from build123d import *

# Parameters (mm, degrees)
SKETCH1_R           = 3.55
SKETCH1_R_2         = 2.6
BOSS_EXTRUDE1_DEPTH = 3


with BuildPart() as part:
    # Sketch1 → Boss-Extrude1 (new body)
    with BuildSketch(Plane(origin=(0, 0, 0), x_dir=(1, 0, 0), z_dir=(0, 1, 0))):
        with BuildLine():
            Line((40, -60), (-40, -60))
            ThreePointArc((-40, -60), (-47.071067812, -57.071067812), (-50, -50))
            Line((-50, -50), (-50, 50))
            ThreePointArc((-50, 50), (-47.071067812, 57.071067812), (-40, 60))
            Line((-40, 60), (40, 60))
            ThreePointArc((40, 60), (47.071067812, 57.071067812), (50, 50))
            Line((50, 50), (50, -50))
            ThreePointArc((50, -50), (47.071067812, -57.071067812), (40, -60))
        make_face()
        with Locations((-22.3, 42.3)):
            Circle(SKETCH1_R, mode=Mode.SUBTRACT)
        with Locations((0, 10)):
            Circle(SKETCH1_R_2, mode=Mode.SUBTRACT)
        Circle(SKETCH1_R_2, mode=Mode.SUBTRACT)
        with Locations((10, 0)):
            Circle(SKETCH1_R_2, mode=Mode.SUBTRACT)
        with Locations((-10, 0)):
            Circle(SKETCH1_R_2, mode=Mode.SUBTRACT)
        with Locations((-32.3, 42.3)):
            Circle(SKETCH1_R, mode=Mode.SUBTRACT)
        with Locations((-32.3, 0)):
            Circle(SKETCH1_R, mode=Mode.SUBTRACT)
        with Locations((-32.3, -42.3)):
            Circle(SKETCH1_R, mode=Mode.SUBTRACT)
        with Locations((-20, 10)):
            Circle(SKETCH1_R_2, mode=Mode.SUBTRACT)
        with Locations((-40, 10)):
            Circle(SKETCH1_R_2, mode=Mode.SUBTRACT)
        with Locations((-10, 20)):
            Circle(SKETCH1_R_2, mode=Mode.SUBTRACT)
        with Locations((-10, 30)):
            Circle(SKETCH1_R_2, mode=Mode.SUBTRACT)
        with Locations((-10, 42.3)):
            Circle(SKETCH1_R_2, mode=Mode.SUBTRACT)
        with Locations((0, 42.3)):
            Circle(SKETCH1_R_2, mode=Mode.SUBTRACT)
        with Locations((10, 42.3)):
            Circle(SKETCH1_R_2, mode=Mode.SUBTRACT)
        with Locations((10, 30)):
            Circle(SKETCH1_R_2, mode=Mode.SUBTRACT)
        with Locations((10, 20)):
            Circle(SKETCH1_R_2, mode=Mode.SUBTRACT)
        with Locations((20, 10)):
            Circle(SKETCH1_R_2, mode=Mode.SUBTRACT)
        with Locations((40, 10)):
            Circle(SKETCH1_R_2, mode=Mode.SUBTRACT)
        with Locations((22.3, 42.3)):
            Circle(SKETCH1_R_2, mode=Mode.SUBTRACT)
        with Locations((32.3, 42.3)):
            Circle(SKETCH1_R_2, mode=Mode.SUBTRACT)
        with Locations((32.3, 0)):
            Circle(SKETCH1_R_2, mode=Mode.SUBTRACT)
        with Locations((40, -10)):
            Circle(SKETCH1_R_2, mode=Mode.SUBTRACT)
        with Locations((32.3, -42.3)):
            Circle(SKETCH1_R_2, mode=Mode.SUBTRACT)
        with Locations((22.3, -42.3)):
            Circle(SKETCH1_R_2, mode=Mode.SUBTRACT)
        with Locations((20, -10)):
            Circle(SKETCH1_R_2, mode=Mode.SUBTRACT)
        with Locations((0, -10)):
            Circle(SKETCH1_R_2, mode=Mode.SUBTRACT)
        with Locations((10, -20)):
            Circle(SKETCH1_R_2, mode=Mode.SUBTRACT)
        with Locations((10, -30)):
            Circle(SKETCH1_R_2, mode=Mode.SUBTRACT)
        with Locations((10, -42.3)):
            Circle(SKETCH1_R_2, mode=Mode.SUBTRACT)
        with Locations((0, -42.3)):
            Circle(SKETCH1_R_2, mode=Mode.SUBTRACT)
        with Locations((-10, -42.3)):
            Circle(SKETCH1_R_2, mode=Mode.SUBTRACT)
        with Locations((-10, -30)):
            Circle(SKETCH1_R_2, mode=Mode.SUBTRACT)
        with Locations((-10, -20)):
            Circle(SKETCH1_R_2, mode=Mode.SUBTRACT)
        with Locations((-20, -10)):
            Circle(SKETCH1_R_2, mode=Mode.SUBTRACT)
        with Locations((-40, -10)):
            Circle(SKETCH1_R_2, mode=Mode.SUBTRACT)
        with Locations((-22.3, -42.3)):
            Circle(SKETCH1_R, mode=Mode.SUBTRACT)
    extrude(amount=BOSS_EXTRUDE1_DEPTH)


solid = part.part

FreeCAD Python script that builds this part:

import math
import FreeCAD as App
import Part
import Sketcher
from FreeCAD import Vector

doc = App.newDocument("Part")
params = doc.addObject("Spreadsheet::Sheet", "Params")
for row, (alias, value) in enumerate([
    ("sketch1_radius", "10 mm"),
    ("sketch1_diameter", "5.2 mm"),
    ("sketch1_diameter2", "7.1 mm"),
    ("sketch1_width", "80 mm"),
    ("sketch1_height", "100 mm"),
    ("pad1_length", "3 mm"),
], start=1):
    params.set(f"A{row}", alias)
    params.set(f"B{row}", "=" + value)
    params.setAlias(f"B{row}", alias)

body = doc.addObject("PartDesign::Body", "Body")

# Sketch on XZ plane
sketch1 = body.newObject("Sketcher::SketchObject", "Sketch")
sketch1.AttachmentSupport = (doc.getObject("XZ_Plane"), [""])
sketch1.MapMode = "FlatFace"
sketch1.addGeometry(Part.LineSegment(Vector(-40, 60, 0), Vector(40, 60, 0)), False)
sketch1.addGeometry(Part.ArcOfCircle(Part.Circle(Vector(40, 50, 0), Vector(0, 0, 1), 10), math.radians(0), math.radians(90)), False)
sketch1.addGeometry(Part.LineSegment(Vector(50, 50, 0), Vector(50, -50, 0)), False)
sketch1.addGeometry(Part.ArcOfCircle(Part.Circle(Vector(40, -50, 0), Vector(0, 0, 1), 10), math.radians(-90), math.radians(0)), False)
sketch1.addGeometry(Part.LineSegment(Vector(40, -60, 0), Vector(-40, -60, 0)), False)
sketch1.addGeometry(Part.ArcOfCircle(Part.Circle(Vector(-40, -50, 0), Vector(0, 0, 1), 10), math.radians(180), math.radians(270)), False)
sketch1.addGeometry(Part.LineSegment(Vector(-50, -50, 0), Vector(-50, 50, 0)), False)
sketch1.addGeometry(Part.ArcOfCircle(Part.Circle(Vector(-40, 50, 0), Vector(0, 0, 1), 10), math.radians(90), math.radians(180)), False)
sketch1.addGeometry(Part.Circle(Vector(32.3, 42.3, 0), Vector(0, 0, 1), 2.6), False)
sketch1.addGeometry(Part.Circle(Vector(22.3, 42.3, 0), Vector(0, 0, 1), 2.6), False)
sketch1.addGeometry(Part.Circle(Vector(10, 42.3, 0), Vector(0, 0, 1), 2.6), False)
sketch1.addGeometry(Part.Circle(Vector(10, 30, 0), Vector(0, 0, 1), 2.6), False)
sketch1.addGeometry(Part.Circle(Vector(40, 10, 0), Vector(0, 0, 1), 2.6), False)
sketch1.addGeometry(Part.Circle(Vector(10, 20, 0), Vector(0, 0, 1), 2.6), False)
sketch1.addGeometry(Part.Circle(Vector(20, 10, 0), Vector(0, 0, 1), 2.6), False)
sketch1.addGeometry(Part.Circle(Vector(0, 42.3, 0), Vector(0, 0, 1), 2.6), False)
sketch1.addGeometry(Part.Circle(Vector(-10, 42.3, 0), Vector(0, 0, 1), 2.6), False)
sketch1.addGeometry(Part.Circle(Vector(-10, 30, 0), Vector(0, 0, 1), 2.6), False)
sketch1.addGeometry(Part.Circle(Vector(-22.3, 42.3, 0), Vector(0, 0, 1), 3.5), False)
sketch1.addGeometry(Part.Circle(Vector(-32.3, 42.3, 0), Vector(0, 0, 1), 3.5), False)
sketch1.addGeometry(Part.Circle(Vector(-10, 20, 0), Vector(0, 0, 1), 2.6), False)
sketch1.addGeometry(Part.Circle(Vector(0, 10, 0), Vector(0, 0, 1), 2.6), False)
sketch1.addGeometry(Part.Circle(Vector(-20, 10, 0), Vector(0, 0, 1), 2.6), False)
sketch1.addGeometry(Part.Circle(Vector(-40, 10, 0), Vector(0, 0, 1), 2.6), False)
sketch1.addGeometry(Part.Circle(Vector(32.3, 0, 0), Vector(0, 0, 1), 2.6), False)
sketch1.addGeometry(Part.Circle(Vector(40, -10, 0), Vector(0, 0, 1), 2.6), False)
sketch1.addGeometry(Part.Circle(Vector(20, -10, 0), Vector(0, 0, 1), 2.6), False)
sketch1.addGeometry(Part.Circle(Vector(10, 0, 0), Vector(0, 0, 1), 2.6), False)
sketch1.addGeometry(Part.Circle(Vector(10, -20, 0), Vector(0, 0, 1), 2.6), False)
sketch1.addGeometry(Part.Circle(Vector(32.3, -42.3, 0), Vector(0, 0, 1), 2.6), False)
sketch1.addGeometry(Part.Circle(Vector(22.3, -42.3, 0), Vector(0, 0, 1), 2.6), False)
sketch1.addGeometry(Part.Circle(Vector(10, -30, 0), Vector(0, 0, 1), 2.6), False)
sketch1.addGeometry(Part.Circle(Vector(10, -42.3, 0), Vector(0, 0, 1), 2.6), False)
sketch1.addGeometry(Part.Circle(Vector(0, 0, 0), Vector(0, 0, 1), 2.6), False)
sketch1.addGeometry(Part.Circle(Vector(-10, 0, 0), Vector(0, 0, 1), 2.6), False)
sketch1.addGeometry(Part.Circle(Vector(0, -10, 0), Vector(0, 0, 1), 2.6), False)
sketch1.addGeometry(Part.Circle(Vector(-20, -10, 0), Vector(0, 0, 1), 2.6), False)
sketch1.addGeometry(Part.Circle(Vector(-10, -20, 0), Vector(0, 0, 1), 2.6), False)
sketch1.addGeometry(Part.Circle(Vector(-32.3, 0, 0), Vector(0, 0, 1), 3.5), False)
sketch1.addGeometry(Part.Circle(Vector(-40, -10, 0), Vector(0, 0, 1), 2.6), False)
sketch1.addGeometry(Part.Circle(Vector(-10, -30, 0), Vector(0, 0, 1), 2.6), False)
sketch1.addGeometry(Part.Circle(Vector(0, -42.3, 0), Vector(0, 0, 1), 2.6), False)
sketch1.addGeometry(Part.Circle(Vector(-10, -42.3, 0), Vector(0, 0, 1), 2.6), False)
sketch1.addGeometry(Part.Circle(Vector(-22.3, -42.3, 0), Vector(0, 0, 1), 3.5), False)
sketch1.addGeometry(Part.Circle(Vector(-32.3, -42.3, 0), Vector(0, 0, 1), 3.5), False)
sketch1.addConstraint(Sketcher.Constraint("Tangent", 0, 2, 1, 2))
sketch1.addConstraint(Sketcher.Constraint("Tangent", 1, 1, 2, 1))
sketch1.addConstraint(Sketcher.Constraint("Tangent", 2, 2, 3, 2))
sketch1.addConstraint(Sketcher.Constraint("Tangent", 3, 1, 4, 1))
sketch1.addConstraint(Sketcher.Constraint("Tangent", 4, 2, 5, 2))
sketch1.addConstraint(Sketcher.Constraint("Tangent", 5, 1, 6, 1))
sketch1.addConstraint(Sketcher.Constraint("Tangent", 6, 2, 7, 2))
sketch1.addConstraint(Sketcher.Constraint("Tangent", 7, 1, 0, 1))
sketch1.addConstraint(Sketcher.Constraint("Horizontal", 0))
sketch1.addConstraint(Sketcher.Constraint("Vertical", 2))
sketch1.addConstraint(Sketcher.Constraint("Horizontal", 4))
sketch1.addConstraint(Sketcher.Constraint("Vertical", 6))
sketch1.addConstraint(Sketcher.Constraint("Coincident", 33, 3, -1, 1))
sketch1.addConstraint(Sketcher.Constraint("Equal", 1, 3))
sketch1.addConstraint(Sketcher.Constraint("Equal", 3, 5))
sketch1.addConstraint(Sketcher.Constraint("Equal", 5, 7))
sketch1.addConstraint(Sketcher.Constraint("Equal", 8, 9))
sketch1.addConstraint(Sketcher.Constraint("Equal", 9, 10))
sketch1.addConstraint(Sketcher.Constraint("Equal", 10, 11))
sketch1.addConstraint(Sketcher.Constraint("Equal", 11, 12))
sketch1.addConstraint(Sketcher.Constraint("Equal", 12, 13))
sketch1.addConstraint(Sketcher.Constraint("Equal", 13, 14))
sketch1.addConstraint(Sketcher.Constraint("Equal", 14, 15))
sketch1.addConstraint(Sketcher.Constraint("Equal", 15, 16))
sketch1.addConstraint(Sketcher.Constraint("Equal", 16, 17))
sketch1.addConstraint(Sketcher.Constraint("Equal", 18, 19))
sketch1.addConstraint(Sketcher.Constraint("Equal", 17, 20))
sketch1.addConstraint(Sketcher.Constraint("Equal", 20, 21))
sketch1.addConstraint(Sketcher.Constraint("Equal", 21, 22))
sketch1.addConstraint(Sketcher.Constraint("Equal", 22, 23))
sketch1.addConstraint(Sketcher.Constraint("Equal", 23, 24))
sketch1.addConstraint(Sketcher.Constraint("Equal", 24, 25))
sketch1.addConstraint(Sketcher.Constraint("Equal", 25, 26))
sketch1.addConstraint(Sketcher.Constraint("Equal", 26, 27))
sketch1.addConstraint(Sketcher.Constraint("Equal", 27, 28))
sketch1.addConstraint(Sketcher.Constraint("Equal", 28, 29))
sketch1.addConstraint(Sketcher.Constraint("Equal", 29, 30))
sketch1.addConstraint(Sketcher.Constraint("Equal", 30, 31))
sketch1.addConstraint(Sketcher.Constraint("Equal", 31, 32))
sketch1.addConstraint(Sketcher.Constraint("Equal", 32, 33))
sketch1.addConstraint(Sketcher.Constraint("Equal", 33, 34))
sketch1.addConstraint(Sketcher.Constraint("Equal", 34, 35))
sketch1.addConstraint(Sketcher.Constraint("Equal", 35, 36))
sketch1.addConstraint(Sketcher.Constraint("Equal", 36, 37))
sketch1.addConstraint(Sketcher.Constraint("Equal", 19, 38))
sketch1.addConstraint(Sketcher.Constraint("Equal", 37, 39))
sketch1.addConstraint(Sketcher.Constraint("Equal", 39, 40))
sketch1.addConstraint(Sketcher.Constraint("Equal", 40, 41))
sketch1.addConstraint(Sketcher.Constraint("Equal", 41, 42))
sketch1.addConstraint(Sketcher.Constraint("Equal", 38, 43))
sketch1.addConstraint(Sketcher.Constraint("Equal", 43, 44))
sketch1.addConstraint(Sketcher.Constraint("Symmetric", 1, 3, 5, 3, -1, 1))
sketch1.addConstraint(Sketcher.Constraint("Symmetric", 23, 3, 25, 3, -1, 1))
sketch1.addConstraint(Sketcher.Constraint("Symmetric", 22, 3, 26, 3, -1, 1))
sketch1.addConstraint(Sketcher.Constraint("Symmetric", 20, 3, 28, 3, -1, 1))
sketch1.addConstraint(Sketcher.Constraint("Symmetric", 19, 3, 29, 3, -1, 1))
sketch1.addConstraint(Sketcher.Constraint("Symmetric", 18, 3, 30, 3, -1, 1))
sketch1.addConstraint(Sketcher.Constraint("Symmetric", 17, 3, 31, 3, -1, 1))
sketch1.addConstraint(Sketcher.Constraint("Symmetric", 16, 3, 32, 3, -1, 1))
sketch1.addConstraint(Sketcher.Constraint("Symmetric", 27, 3, 34, 3, -1, 1))
sketch1.addConstraint(Sketcher.Constraint("Symmetric", 21, 3, 35, 3, -1, 1))
sketch1.addConstraint(Sketcher.Constraint("Symmetric", 14, 3, 36, 3, -1, 1))
sketch1.addConstraint(Sketcher.Constraint("Symmetric", 13, 3, 37, 3, -1, 1))
sketch1.addConstraint(Sketcher.Constraint("Symmetric", 24, 3, 38, 3, -1, 1))
sketch1.addConstraint(Sketcher.Constraint("Symmetric", 12, 3, 39, 3, -1, 1))
sketch1.addConstraint(Sketcher.Constraint("Symmetric", 11, 3, 40, 3, -1, 1))
sketch1.addConstraint(Sketcher.Constraint("Symmetric", 15, 3, 41, 3, -1, 1))
sketch1.addConstraint(Sketcher.Constraint("Symmetric", 10, 3, 42, 3, -1, 1))
sketch1.addConstraint(Sketcher.Constraint("Symmetric", 9, 3, 43, 3, -1, 1))
sketch1.addConstraint(Sketcher.Constraint("Symmetric", 8, 3, 44, 3, -1, 1))
sketch1.addConstraint(Sketcher.Constraint("Symmetric", 10, 3, 16, 3, -2))
sketch1.addConstraint(Sketcher.Constraint("Symmetric", 11, 3, 17, 3, -2))
sketch1.addConstraint(Sketcher.Constraint("Symmetric", 9, 3, 18, 3, -2))
sketch1.addConstraint(Sketcher.Constraint("Symmetric", 8, 3, 19, 3, -2))
sketch1.addConstraint(Sketcher.Constraint("Symmetric", 13, 3, 20, 3, -2))
sketch1.addConstraint(Sketcher.Constraint("Symmetric", 14, 3, 22, 3, -2))
sketch1.addConstraint(Sketcher.Constraint("Symmetric", 12, 3, 23, 3, -2))
sketch1.addConstraint(Sketcher.Constraint("PointOnObject", 15, 3, -2))
sketch1.addConstraint(Sketcher.Constraint("PointOnObject", 21, 3, -2))
sketch1.addConstraint(Sketcher.Constraint("PointOnObject", 24, 3, -1))
sketch1.addConstraint(Sketcher.Constraint("PointOnObject", 27, 3, -1))
sketch1.addConstraint(Sketcher.Constraint("Horizontal", 8, 3, 9, 3))
sketch1.addConstraint(Sketcher.Constraint("Horizontal", 9, 3, 10, 3))
sketch1.addConstraint(Sketcher.Constraint("Horizontal", 12, 3, 14, 3))
sketch1.addConstraint(Sketcher.Constraint("Horizontal", 10, 3, 15, 3))
sketch1.addConstraint(Sketcher.Constraint("Horizontal", 14, 3, 21, 3))
sketch1.addConstraint(Sketcher.Constraint("Vertical", 10, 3, 11, 3))
sketch1.addConstraint(Sketcher.Constraint("Vertical", 3, 3, 12, 3))
sketch1.addConstraint(Sketcher.Constraint("Vertical", 11, 3, 13, 3))
sketch1.addConstraint(Sketcher.Constraint("Vertical", 8, 3, 24, 3))
sketch1.addConstraint(Sketcher.Constraint("Vertical", 13, 3, 27, 3))
sketch1.addConstraint(Sketcher.Constraint("Radius", 1, 10.0))
sketch1.addConstraint(Sketcher.Constraint("Diameter", 8, 5.2))
sketch1.addConstraint(Sketcher.Constraint("Diameter", 18, 7.1))
sketch1.addConstraint(Sketcher.Constraint("DistanceX", 0, 1, 0, 2, 80.0))
sketch1.addConstraint(Sketcher.Constraint("DistanceY", 2, 2, 2, 1, 100.0))
sketch1.addConstraint(Sketcher.Constraint("DistanceX", -1, 1, 10, 3, 10.0))
sketch1.addConstraint(Sketcher.Constraint("DistanceY", -1, 1, 11, 3, 30.0))
sketch1.addConstraint(Sketcher.Constraint("DistanceY", -1, 1, 12, 3, 10.0))
sketch1.addConstraint(Sketcher.Constraint("DistanceY", -1, 1, 13, 3, 20.0))
sketch1.addConstraint(Sketcher.Constraint("DistanceX", -1, 1, 14, 3, 20.0))
sketch1.addConstraint(Sketcher.Constraint("DistanceX", 9, 3, 8, 3, 10.0))
sketch1.addConstraint(Sketcher.Constraint("DistanceX", -1, 1, 8, 3, 32.3))
sketch1.addConstraint(Sketcher.Constraint("DistanceY", -1, 1, 8, 3, 42.3))
sketch1.setExpression("Constraints[91]", "Params.sketch1_radius")
sketch1.setExpression("Constraints[92]", "Params.sketch1_diameter")
sketch1.setExpression("Constraints[93]", "Params.sketch1_diameter2")
sketch1.setExpression("Constraints[94]", "Params.sketch1_width")
sketch1.setExpression("Constraints[95]", "Params.sketch1_height")
pad1 = body.newObject("PartDesign::Pad", "Pad")
pad1.Profile = sketch1
pad1.setExpression("Length", "Params.pad1_length")
pad1.Reversed = True

doc.recompute()
